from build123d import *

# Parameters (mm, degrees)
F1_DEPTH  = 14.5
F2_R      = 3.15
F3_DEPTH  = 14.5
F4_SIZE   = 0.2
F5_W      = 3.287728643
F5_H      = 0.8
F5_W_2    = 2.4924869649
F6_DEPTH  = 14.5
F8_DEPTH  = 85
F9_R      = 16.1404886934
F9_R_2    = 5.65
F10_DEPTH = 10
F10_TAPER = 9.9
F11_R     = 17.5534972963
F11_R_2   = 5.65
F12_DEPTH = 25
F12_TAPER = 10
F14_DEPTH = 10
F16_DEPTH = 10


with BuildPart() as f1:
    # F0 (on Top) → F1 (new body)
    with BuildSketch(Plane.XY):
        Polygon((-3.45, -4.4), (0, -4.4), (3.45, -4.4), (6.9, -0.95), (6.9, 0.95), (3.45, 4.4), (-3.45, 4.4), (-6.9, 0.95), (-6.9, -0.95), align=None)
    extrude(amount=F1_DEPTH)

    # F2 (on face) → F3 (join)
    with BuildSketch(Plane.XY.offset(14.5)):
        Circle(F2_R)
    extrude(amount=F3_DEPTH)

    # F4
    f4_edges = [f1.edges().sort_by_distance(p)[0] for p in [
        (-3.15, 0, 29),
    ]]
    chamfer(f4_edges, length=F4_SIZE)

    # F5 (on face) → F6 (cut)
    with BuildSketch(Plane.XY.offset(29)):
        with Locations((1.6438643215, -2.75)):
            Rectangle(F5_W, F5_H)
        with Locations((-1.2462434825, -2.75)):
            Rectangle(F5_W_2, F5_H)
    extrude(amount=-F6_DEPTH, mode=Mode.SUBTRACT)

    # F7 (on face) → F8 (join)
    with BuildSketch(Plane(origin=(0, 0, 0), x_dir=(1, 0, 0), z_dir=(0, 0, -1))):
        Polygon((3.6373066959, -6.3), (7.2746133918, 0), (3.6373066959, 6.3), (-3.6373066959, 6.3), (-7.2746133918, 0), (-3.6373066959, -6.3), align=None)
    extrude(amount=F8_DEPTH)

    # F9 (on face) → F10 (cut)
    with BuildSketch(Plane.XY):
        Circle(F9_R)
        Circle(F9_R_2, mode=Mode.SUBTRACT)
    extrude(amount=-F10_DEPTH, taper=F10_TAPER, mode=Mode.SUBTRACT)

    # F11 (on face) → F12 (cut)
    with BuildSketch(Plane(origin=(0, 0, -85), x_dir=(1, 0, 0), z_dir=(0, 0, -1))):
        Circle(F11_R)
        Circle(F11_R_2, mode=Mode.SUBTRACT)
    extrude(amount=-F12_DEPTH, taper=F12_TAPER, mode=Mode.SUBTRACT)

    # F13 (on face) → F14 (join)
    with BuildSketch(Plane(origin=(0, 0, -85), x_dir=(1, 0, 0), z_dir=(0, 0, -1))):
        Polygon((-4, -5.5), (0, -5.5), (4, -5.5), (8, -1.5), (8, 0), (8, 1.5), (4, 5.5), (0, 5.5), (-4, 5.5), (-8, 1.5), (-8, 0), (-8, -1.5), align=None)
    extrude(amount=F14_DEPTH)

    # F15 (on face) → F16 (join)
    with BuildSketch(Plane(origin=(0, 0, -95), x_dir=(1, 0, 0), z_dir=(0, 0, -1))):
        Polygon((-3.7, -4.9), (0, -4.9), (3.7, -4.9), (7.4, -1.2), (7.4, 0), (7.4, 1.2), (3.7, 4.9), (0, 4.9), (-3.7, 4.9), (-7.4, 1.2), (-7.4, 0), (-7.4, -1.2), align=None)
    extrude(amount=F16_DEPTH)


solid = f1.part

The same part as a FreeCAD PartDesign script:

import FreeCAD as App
import Part
import Sketcher
from FreeCAD import Vector
Q = App.Units.Quantity


def edges_at(feature, points):
    """Names of the edges that pass closest to the given points."""
    edges = feature.Shape.Edges
    near = lambda p: min(range(len(edges)), key=lambda i: edges[i].distToShape(Part.Vertex(*p))[0])
    return sorted({f"Edge{near(p) + 1}" for p in points})

doc = App.newDocument("Part")
params = doc.addObject("Spreadsheet::Sheet", "Params")
for row, (alias, value) in enumerate([
    ("sketch1_width", "6.9 mm"),
    ("sketch1_height", "1.9 mm"),
    ("pad1_length", "14.5 mm"),
    ("sketch2_diameter", "6.3 mm"),
    ("pad2_length", "14.5 mm"),
    ("chamfer_size", "0.2 mm"),
    ("sketch3_height", "0.8 mm"),
    ("pocket1_length", "14.5 mm"),
    ("pad3_length", "85 mm"),
    ("sketch5_diameter", "11.3 mm"),
    ("pocket2_length", "10 mm"),
    ("pocket2_taper", "9.9 deg"),
    ("sketch6_diameter", "11.3 mm"),
    ("pocket3_length", "25 mm"),
    ("pocket3_taper", "10 deg"),
    ("sketch7_width", "8 mm"),
    ("sketch7_height", "3 mm"),
    ("pad4_length", "10 mm"),
    ("sketch8_width", "7.4 mm"),
    ("sketch8_height", "2.4 mm"),
    ("pad5_length", "10 mm"),
], start=1):
    params.set(f"A{row}", alias)
    params.set(f"B{row}", "=" + value)
    params.setAlias(f"B{row}", alias)

body = doc.addObject("PartDesign::Body", "Body")

# Sketch on XY plane
sketch1 = body.newObject("Sketcher::SketchObject", "Sketch")
sketch1.AttachmentSupport = (doc.getObject("XY_Plane"), [""])
sketch1.MapMode = "FlatFace"
sketch1.addGeometry([
    Part.LineSegment(Vector(-3.5, -4.4, 0), Vector(3.5, -4.4, 0)),  # 0
    Part.LineSegment(Vector(3.5, -4.4, 0), Vector(6.9, -0.9, 0)),  # 1
    Part.LineSegment(Vector(6.9, -0.9, 0), Vector(6.9, 0.9, 0)),  # 2
    Part.LineSegment(Vector(6.9, 0.9, 0), Vector(3.5, 4.4, 0)),  # 3
    Part.LineSegment(Vector(3.5, 4.4, 0), Vector(-3.5, 4.4, 0)),  # 4
    Part.LineSegment(Vector(-3.5, 4.4, 0), Vector(-6.9, 0.9, 0)),  # 5
    Part.LineSegment(Vector(-6.9, 0.9, 0), Vector(-6.9, -0.9, 0)),  # 6
    Part.LineSegment(Vector(-6.9, -0.9, 0), Vector(-3.5, -4.4, 0)),  # 7
], False)
sketch1.addConstraint([
    Sketcher.Constraint("Coincident", 0, 2, 1, 1),
    Sketcher.Constraint("Coincident", 1, 2, 2, 1),
    Sketcher.Constraint("Coincident", 2, 2, 3, 1),
    Sketcher.Constraint("Coincident", 3, 2, 4, 1),
    Sketcher.Constraint("Coincident", 4, 2, 5, 1),
    Sketcher.Constraint("Coincident", 5, 2, 6, 1),
    Sketcher.Constraint("Coincident", 6, 2, 7, 1),
    Sketcher.Constraint("Coincident", 7, 2, 0, 1),
    Sketcher.Constraint("Horizontal", 0),
    Sketcher.Constraint("Vertical", 2),
    Sketcher.Constraint("Horizontal", 4),
    Sketcher.Constraint("Vertical", 6),
    Sketcher.Constraint("Symmetric", 0, 2, 4, 2, -1, 1),
    Sketcher.Constraint("Symmetric", 1, 2, 5, 2, -1, 1),
    Sketcher.Constraint("Perpendicular", 1, 3),
    Sketcher.Constraint("Perpendicular", 5, 7),
    Sketcher.Constraint("Horizontal", 2, 2, 5, 2),
    Sketcher.Constraint("Horizontal", 1, 2, 6, 2),
    Sketcher.Constraint("Vertical", 0, 2, 3, 2),
    Sketcher.Constraint("DistanceX", 0, 1, 0, 2, Q("6.9 mm")),
    Sketcher.Constraint("DistanceY", 2, 1, 2, 2, Q("1.9 mm")),
    Sketcher.Constraint("DistanceY", 0, 2, -1, 1, Q("4.4 mm")),
])
sketch1.setExpression("Constraints[19]", "Params.sketch1_width")
sketch1.setExpression("Constraints[20]", "Params.sketch1_height")
pad1 = body.newObject("PartDesign::Pad", "Pad")
pad1.Profile = sketch1
pad1.setExpression("Length", "Params.pad1_length")

# Sketch on XY plane
sketch2 = body.newObject("Sketcher::SketchObject", "Sketch001")
sketch2.AttachmentSupport = (doc.getObject("XY_Plane"), [""])
sketch2.MapMode = "FlatFace"
sketch2.AttachmentOffset = App.Placement(Vector(0, 0, 14.5), App.Rotation())
sketch2.addGeometry(Part.Circle(Vector(0, 0, 0), Vector(0, 0, 1), 3.1), False)
sketch2.addConstraint([
    Sketcher.Constraint("Coincident", 0, 3, -1, 1),
    Sketcher.Constraint("Diameter", 0, Q("6.3 mm")),
])
sketch2.setExpression("Constraints[1]", "Params.sketch2_diameter")
pad2 = body.newObject("PartDesign::Pad", "Pad001")
pad2.Profile = sketch2
pad2.setExpression("Length", "Params.pad2_length")
doc.recompute()

chamfer = body.newObject("PartDesign::Chamfer", "Chamfer")
chamfer.Base = (pad2, edges_at(pad2, [(-3.15, 0, 29)]))
chamfer.setExpression("Size", "Params.chamfer_size")

# Sketch on XY plane
sketch3 = body.newObject("Sketcher::SketchObject", "Sketch002")
sketch3.AttachmentSupport = (doc.getObject("XY_Plane"), [""])
sketch3.MapMode = "FlatFace"
sketch3.AttachmentOffset = App.Placement(Vector(0, 0, 29), App.Rotation())
sketch3.addGeometry([
    Part.LineSegment(Vector(3.3, -3.1, 0), Vector(3.3, -2.4, 0)),
    Part.LineSegment(Vector(3.3, -2.4, 0), Vector(-2.5, -2.4, 0)),
    Part.LineSegment(Vector(-2.5, -2.4, 0), Vector(-2.5, -3.1, 0)),
    Part.LineSegment(Vector(-2.5, -3.1, 0), Vector(3.3, -3.1, 0)),
], False)
sketch3.addConstraint([
    Sketcher.Constraint("Coincident", 0, 2, 1, 1),
    Sketcher.Constraint("Coincident", 1, 2, 2, 1),
    Sketcher.Constraint("Coincident", 2, 2, 3, 1),
    Sketcher.Constraint("Coincident", 3, 2, 0, 1),
    Sketcher.Constraint("Vertical", 0),
    Sketcher.Constraint("Horizontal", 1),
    Sketcher.Constraint("Vertical", 2),
    Sketcher.Constraint("Horizontal", 3),
    Sketcher.Constraint("DistanceY", 0, 1, 0, 2, Q("0.8 mm")),
    Sketcher.Constraint("DistanceY", 0, 2, -1, 1, Q("2.35 mm")),
    Sketcher.Constraint("DistanceX", 1, 2, 1, 1, Q("5.780216 mm")),
    Sketcher.Constraint("DistanceX", -1, 1, 0, 2, Q("3.287729 mm")),
])
sketch3.setExpression("Constraints[8]", "Params.sketch3_height")
pocket1 = body.newObject("PartDesign::Pocket", "Pocket")
pocket1.Profile = sketch3
pocket1.setExpression("Length", "Params.pocket1_length")

# Sketch on XY plane
sketch4 = body.newObject("Sketcher::SketchObject", "Sketch003")
sketch4.AttachmentSupport = (doc.getObject("XY_Plane"), [""])
sketch4.MapMode = "FlatFace"
sketch4.addGeometry([
    Part.LineSegment(Vector(4, 6, 0), Vector(7, 0, 0)),  # 0
    Part.LineSegment(Vector(7, 0, 0), Vector(4, -6, 0)),  # 1
    Part.LineSegment(Vector(4, -6, 0), Vector(-4, -6, 0)),  # 2
    Part.LineSegment(Vector(-4, -6, 0), Vector(-7, 0, 0)),  # 3
    Part.LineSegment(Vector(-7, 0, 0), Vector(-4, 6, 0)),  # 4
    Part.LineSegment(Vector(-4, 6, 0), Vector(4, 6, 0)),  # 5
], False)
sketch4.addConstraint([
    Sketcher.Constraint("Coincident", 0, 2, 1, 1),
    Sketcher.Constraint("Coincident", 1, 2, 2, 1),
    Sketcher.Constraint("Coincident", 2, 2, 3, 1),
    Sketcher.Constraint("Coincident", 3, 2, 4, 1),
    Sketcher.Constraint("Coincident", 4, 2, 5, 1),
    Sketcher.Constraint("Coincident", 5, 2, 0, 1),
    Sketcher.Constraint("Horizontal", 2),
    Sketcher.Constraint("Horizontal", 5),
    Sketcher.Constraint("Symmetric", 0, 2, 3, 2, -1, 1),
    Sketcher.Constraint("Symmetric", 1, 2, 4, 2, -1, 1),
    Sketcher.Constraint("PointOnObject", 0, 2, -1),
    Sketcher.Constraint("Parallel", 0, 3),
    Sketcher.Constraint("Vertical", 2, 2, 4, 2),
    Sketcher.Constraint("Angle", 0, Q("-60 deg")),
    Sketcher.Constraint("DistanceY", 1, 2, -1, 1, Q("6.3 mm")),
    Sketcher.Constraint("DistanceX", 2, 2, 2, 1, Q("7.274613 mm")),
])
pad3 = body.newObject("PartDesign::Pad", "Pad002")
pad3.Profile = sketch4
pad3.setExpression("Length", "Params.pad3_length")
pad3.Reversed = True

# Sketch on XY plane
sketch5 = body.newObject("Sketcher::SketchObject", "Sketch004")
sketch5.AttachmentSupport = (doc.getObject("XY_Plane"), [""])
sketch5.MapMode = "FlatFace"
sketch5.addGeometry([
    Part.Circle(Vector(0, 0, 0), Vector(0, 0, 1), 16),
    Part.Circle(Vector(0, 0, 0), Vector(0, 0, 1), 6),
], False)
sketch5.addConstraint([
    Sketcher.Constraint("Coincident", 0, 3, -1, 1),
    Sketcher.Constraint("Coincident", 1, 3, -1, 1),
    Sketcher.Constraint("Diameter", 1, Q("11.3 mm")),
    Sketcher.Constraint("Diameter", 0, Q("32.280977 mm")),
])
sketch5.setExpression("Constraints[2]", "Params.sketch5_diameter")
pocket2 = body.newObject("PartDesign::Pocket", "Pocket001")
pocket2.Profile = sketch5
pocket2.setExpression("Length", "Params.pocket2_length")
pocket2.setExpression("TaperAngle", "Params.pocket2_taper")

# Sketch on XY plane
sketch6 = body.newObject("Sketcher::SketchObject", "Sketch005")
sketch6.AttachmentSupport = (doc.getObject("XY_Plane"), [""])
sketch6.MapMode = "FlatFace"
sketch6.AttachmentOffset = App.Placement(Vector(0, 0, -85), App.Rotation())
sketch6.addGeometry([
    Part.Circle(Vector(0, 0, 0), Vector(0, 0, 1), 18),
    Part.Circle(Vector(0, 0, 0), Vector(0, 0, 1), 6),
], False)
sketch6.addConstraint([
    Sketcher.Constraint("Coincident", 0, 3, -1, 1),
    Sketcher.Constraint("Coincident", 1, 3, -1, 1),
    Sketcher.Constraint("Diameter", 1, Q("11.3 mm")),
    Sketcher.Constraint("Diameter", 0, Q("35.106995 mm")),
])
sketch6.setExpression("Constraints[2]", "Params.sketch6_diameter")
pocket3 = body.newObject("PartDesign::Pocket", "Pocket002")
pocket3.Profile = sketch6
pocket3.setExpression("Length", "Params.pocket3_length")
pocket3.Reversed = True
pocket3.setExpression("TaperAngle", "Params.pocket3_taper")

# Sketch on XY plane
sketch7 = body.newObject("Sketcher::SketchObject", "Sketch006")
sketch7.AttachmentSupport = (doc.getObject("XY_Plane"), [""])
sketch7.MapMode = "FlatFace"
sketch7.AttachmentOffset = App.Placement(Vector(0, 0, -85), App.Rotation())
sketch7.addGeometry([
    Part.LineSegment(Vector(-4, 5.5, 0), Vector(4, 5.5, 0)),  # 0
    Part.LineSegment(Vector(4, 5.5, 0), Vector(8, 1.5, 0)),  # 1
    Part.LineSegment(Vector(8, 1.5, 0), Vector(8, -1.5, 0)),  # 2
    Part.LineSegment(Vector(8, -1.5, 0), Vector(4, -5.5, 0)),  # 3
    Part.LineSegment(Vector(4, -5.5, 0), Vector(-4, -5.5, 0)),  # 4
    Part.LineSegment(Vector(-4, -5.5, 0), Vector(-8, -1.5, 0)),  # 5
    Part.LineSegment(Vector(-8, -1.5, 0), Vector(-8, 1.5, 0)),  # 6
    Part.LineSegment(Vector(-8, 1.5, 0), Vector(-4, 5.5, 0)),  # 7
], False)
sketch7.addConstraint([
    Sketcher.Constraint("Coincident", 0, 2, 1, 1),
    Sketcher.Constraint("Coincident", 1, 2, 2, 1),
    Sketcher.Constraint("Coincident", 2, 2, 3, 1),
    Sketcher.Constraint("Coincident", 3, 2, 4, 1),
    Sketcher.Constraint("Coincident", 4, 2, 5, 1),
    Sketcher.Constraint("Coincident", 5, 2, 6, 1),
    Sketcher.Constraint("Coincident", 6, 2, 7, 1),
    Sketcher.Constraint("Coincident", 7, 2, 0, 1),
    Sketcher.Constraint("Horizontal", 0),
    Sketcher.Constraint("Vertical", 2),
    Sketcher.Constraint("Horizontal", 4),
    Sketcher.Constraint("Vertical", 6),
    Sketcher.Constraint("Symmetric", 0, 2, 4, 2, -1, 1),
    Sketcher.Constraint("Symmetric", 1, 2, 5, 2, -1, 1),
    Sketcher.Constraint("Perpendicular", 1, 3),
    Sketcher.Constraint("Perpendicular", 5, 7),
    Sketcher.Constraint("Horizontal", 2, 2, 5, 2),
    Sketcher.Constraint("Horizontal", 1, 2, 6, 2),
    Sketcher.Constraint("Vertical", 0, 2, 3, 2),
    Sketcher.Constraint("DistanceX", 0, 1, 0, 2, Q("8 mm")),
    Sketcher.Constraint("DistanceY", 2, 2, 2, 1, Q("3 mm")),
    Sketcher.Constraint("DistanceX", -1, 1, 1, 2, Q("8 mm")),
])
sketch7.setExpression("Constraints[19]", "Params.sketch7_width")
sketch7.setExpression("Constraints[20]", "Params.sketch7_height")
pad4 = body.newObject("PartDesign::Pad", "Pad003")
pad4.Profile = sketch7
pad4.setExpression("Length", "Params.pad4_length")
pad4.Reversed = True

# Sketch on XY plane
sketch8 = body.newObject("Sketcher::SketchObject", "Sketch007")
sketch8.AttachmentSupport = (doc.getObject("XY_Plane"), [""])
sketch8.MapMode = "FlatFace"
sketch8.AttachmentOffset = App.Placement(Vector(0, 0, -95), App.Rotation())
sketch8.addGeometry([
    Part.LineSegment(Vector(-3.7, 4.9, 0), Vector(3.7, 4.9, 0)),  # 0
    Part.LineSegment(Vector(3.7, 4.9, 0), Vector(7.4, 1.2, 0)),  # 1
    Part.LineSegment(Vector(7.4, 1.2, 0), Vector(7.4, -1.2, 0)),  # 2
    Part.LineSegment(Vector(7.4, -1.2, 0), Vector(3.7, -4.9, 0)),  # 3
    Part.LineSegment(Vector(3.7, -4.9, 0), Vector(-3.7, -4.9, 0)),  # 4
    Part.LineSegment(Vector(-3.7, -4.9, 0), Vector(-7.4, -1.2, 0)),  # 5
    Part.LineSegment(Vector(-7.4, -1.2, 0), Vector(-7.4, 1.2, 0)),  # 6
    Part.LineSegment(Vector(-7.4, 1.2, 0), Vector(-3.7, 4.9, 0)),  # 7
], False)
sketch8.addConstraint([
    Sketcher.Constraint("Coincident", 0, 2, 1, 1),
    Sketcher.Constraint("Coincident", 1, 2, 2, 1),
    Sketcher.Constraint("Coincident", 2, 2, 3, 1),
    Sketcher.Constraint("Coincident", 3, 2, 4, 1),
    Sketcher.Constraint("Coincident", 4, 2, 5, 1),
    Sketcher.Constraint("Coincident", 5, 2, 6, 1),
    Sketcher.Constraint("Coincident", 6, 2, 7, 1),
    Sketcher.Constraint("Coincident", 7, 2, 0, 1),
    Sketcher.Constraint("Horizontal", 0),
    Sketcher.Constraint("Vertical", 2),
    Sketcher.Constraint("Horizontal", 4),
    Sketcher.Constraint("Vertical", 6),
    Sketcher.Constraint("Symmetric", 0, 2, 4, 2, -1, 1),
    Sketcher.Constraint("Symmetric", 1, 2, 5, 2, -1, 1),
    Sketcher.Constraint("Perpendicular", 1, 3),
    Sketcher.Constraint("Perpendicular", 5, 7),
    Sketcher.Constraint("Horizontal", 2, 2, 5, 2),
    Sketcher.Constraint("Horizontal", 1, 2, 6, 2),
    Sketcher.Constraint("Vertical", 0, 2, 3, 2),
    Sketcher.Constraint("DistanceX", 0, 1, 0, 2, Q("7.4 mm")),
    Sketcher.Constraint("DistanceY", 2, 2, 2, 1, Q("2.4 mm")),
    Sketcher.Constraint("DistanceY", -1, 1, 0, 2, Q("4.9 mm")),
])
sketch8.setExpression("Constraints[19]", "Params.sketch8_width")
sketch8.setExpression("Constraints[20]", "Params.sketch8_height")
pad5 = body.newObject("PartDesign::Pad", "Pad004")
pad5.Profile = sketch8
pad5.setExpression("Length", "Params.pad5_length")
pad5.Reversed = True

doc.recompute()
